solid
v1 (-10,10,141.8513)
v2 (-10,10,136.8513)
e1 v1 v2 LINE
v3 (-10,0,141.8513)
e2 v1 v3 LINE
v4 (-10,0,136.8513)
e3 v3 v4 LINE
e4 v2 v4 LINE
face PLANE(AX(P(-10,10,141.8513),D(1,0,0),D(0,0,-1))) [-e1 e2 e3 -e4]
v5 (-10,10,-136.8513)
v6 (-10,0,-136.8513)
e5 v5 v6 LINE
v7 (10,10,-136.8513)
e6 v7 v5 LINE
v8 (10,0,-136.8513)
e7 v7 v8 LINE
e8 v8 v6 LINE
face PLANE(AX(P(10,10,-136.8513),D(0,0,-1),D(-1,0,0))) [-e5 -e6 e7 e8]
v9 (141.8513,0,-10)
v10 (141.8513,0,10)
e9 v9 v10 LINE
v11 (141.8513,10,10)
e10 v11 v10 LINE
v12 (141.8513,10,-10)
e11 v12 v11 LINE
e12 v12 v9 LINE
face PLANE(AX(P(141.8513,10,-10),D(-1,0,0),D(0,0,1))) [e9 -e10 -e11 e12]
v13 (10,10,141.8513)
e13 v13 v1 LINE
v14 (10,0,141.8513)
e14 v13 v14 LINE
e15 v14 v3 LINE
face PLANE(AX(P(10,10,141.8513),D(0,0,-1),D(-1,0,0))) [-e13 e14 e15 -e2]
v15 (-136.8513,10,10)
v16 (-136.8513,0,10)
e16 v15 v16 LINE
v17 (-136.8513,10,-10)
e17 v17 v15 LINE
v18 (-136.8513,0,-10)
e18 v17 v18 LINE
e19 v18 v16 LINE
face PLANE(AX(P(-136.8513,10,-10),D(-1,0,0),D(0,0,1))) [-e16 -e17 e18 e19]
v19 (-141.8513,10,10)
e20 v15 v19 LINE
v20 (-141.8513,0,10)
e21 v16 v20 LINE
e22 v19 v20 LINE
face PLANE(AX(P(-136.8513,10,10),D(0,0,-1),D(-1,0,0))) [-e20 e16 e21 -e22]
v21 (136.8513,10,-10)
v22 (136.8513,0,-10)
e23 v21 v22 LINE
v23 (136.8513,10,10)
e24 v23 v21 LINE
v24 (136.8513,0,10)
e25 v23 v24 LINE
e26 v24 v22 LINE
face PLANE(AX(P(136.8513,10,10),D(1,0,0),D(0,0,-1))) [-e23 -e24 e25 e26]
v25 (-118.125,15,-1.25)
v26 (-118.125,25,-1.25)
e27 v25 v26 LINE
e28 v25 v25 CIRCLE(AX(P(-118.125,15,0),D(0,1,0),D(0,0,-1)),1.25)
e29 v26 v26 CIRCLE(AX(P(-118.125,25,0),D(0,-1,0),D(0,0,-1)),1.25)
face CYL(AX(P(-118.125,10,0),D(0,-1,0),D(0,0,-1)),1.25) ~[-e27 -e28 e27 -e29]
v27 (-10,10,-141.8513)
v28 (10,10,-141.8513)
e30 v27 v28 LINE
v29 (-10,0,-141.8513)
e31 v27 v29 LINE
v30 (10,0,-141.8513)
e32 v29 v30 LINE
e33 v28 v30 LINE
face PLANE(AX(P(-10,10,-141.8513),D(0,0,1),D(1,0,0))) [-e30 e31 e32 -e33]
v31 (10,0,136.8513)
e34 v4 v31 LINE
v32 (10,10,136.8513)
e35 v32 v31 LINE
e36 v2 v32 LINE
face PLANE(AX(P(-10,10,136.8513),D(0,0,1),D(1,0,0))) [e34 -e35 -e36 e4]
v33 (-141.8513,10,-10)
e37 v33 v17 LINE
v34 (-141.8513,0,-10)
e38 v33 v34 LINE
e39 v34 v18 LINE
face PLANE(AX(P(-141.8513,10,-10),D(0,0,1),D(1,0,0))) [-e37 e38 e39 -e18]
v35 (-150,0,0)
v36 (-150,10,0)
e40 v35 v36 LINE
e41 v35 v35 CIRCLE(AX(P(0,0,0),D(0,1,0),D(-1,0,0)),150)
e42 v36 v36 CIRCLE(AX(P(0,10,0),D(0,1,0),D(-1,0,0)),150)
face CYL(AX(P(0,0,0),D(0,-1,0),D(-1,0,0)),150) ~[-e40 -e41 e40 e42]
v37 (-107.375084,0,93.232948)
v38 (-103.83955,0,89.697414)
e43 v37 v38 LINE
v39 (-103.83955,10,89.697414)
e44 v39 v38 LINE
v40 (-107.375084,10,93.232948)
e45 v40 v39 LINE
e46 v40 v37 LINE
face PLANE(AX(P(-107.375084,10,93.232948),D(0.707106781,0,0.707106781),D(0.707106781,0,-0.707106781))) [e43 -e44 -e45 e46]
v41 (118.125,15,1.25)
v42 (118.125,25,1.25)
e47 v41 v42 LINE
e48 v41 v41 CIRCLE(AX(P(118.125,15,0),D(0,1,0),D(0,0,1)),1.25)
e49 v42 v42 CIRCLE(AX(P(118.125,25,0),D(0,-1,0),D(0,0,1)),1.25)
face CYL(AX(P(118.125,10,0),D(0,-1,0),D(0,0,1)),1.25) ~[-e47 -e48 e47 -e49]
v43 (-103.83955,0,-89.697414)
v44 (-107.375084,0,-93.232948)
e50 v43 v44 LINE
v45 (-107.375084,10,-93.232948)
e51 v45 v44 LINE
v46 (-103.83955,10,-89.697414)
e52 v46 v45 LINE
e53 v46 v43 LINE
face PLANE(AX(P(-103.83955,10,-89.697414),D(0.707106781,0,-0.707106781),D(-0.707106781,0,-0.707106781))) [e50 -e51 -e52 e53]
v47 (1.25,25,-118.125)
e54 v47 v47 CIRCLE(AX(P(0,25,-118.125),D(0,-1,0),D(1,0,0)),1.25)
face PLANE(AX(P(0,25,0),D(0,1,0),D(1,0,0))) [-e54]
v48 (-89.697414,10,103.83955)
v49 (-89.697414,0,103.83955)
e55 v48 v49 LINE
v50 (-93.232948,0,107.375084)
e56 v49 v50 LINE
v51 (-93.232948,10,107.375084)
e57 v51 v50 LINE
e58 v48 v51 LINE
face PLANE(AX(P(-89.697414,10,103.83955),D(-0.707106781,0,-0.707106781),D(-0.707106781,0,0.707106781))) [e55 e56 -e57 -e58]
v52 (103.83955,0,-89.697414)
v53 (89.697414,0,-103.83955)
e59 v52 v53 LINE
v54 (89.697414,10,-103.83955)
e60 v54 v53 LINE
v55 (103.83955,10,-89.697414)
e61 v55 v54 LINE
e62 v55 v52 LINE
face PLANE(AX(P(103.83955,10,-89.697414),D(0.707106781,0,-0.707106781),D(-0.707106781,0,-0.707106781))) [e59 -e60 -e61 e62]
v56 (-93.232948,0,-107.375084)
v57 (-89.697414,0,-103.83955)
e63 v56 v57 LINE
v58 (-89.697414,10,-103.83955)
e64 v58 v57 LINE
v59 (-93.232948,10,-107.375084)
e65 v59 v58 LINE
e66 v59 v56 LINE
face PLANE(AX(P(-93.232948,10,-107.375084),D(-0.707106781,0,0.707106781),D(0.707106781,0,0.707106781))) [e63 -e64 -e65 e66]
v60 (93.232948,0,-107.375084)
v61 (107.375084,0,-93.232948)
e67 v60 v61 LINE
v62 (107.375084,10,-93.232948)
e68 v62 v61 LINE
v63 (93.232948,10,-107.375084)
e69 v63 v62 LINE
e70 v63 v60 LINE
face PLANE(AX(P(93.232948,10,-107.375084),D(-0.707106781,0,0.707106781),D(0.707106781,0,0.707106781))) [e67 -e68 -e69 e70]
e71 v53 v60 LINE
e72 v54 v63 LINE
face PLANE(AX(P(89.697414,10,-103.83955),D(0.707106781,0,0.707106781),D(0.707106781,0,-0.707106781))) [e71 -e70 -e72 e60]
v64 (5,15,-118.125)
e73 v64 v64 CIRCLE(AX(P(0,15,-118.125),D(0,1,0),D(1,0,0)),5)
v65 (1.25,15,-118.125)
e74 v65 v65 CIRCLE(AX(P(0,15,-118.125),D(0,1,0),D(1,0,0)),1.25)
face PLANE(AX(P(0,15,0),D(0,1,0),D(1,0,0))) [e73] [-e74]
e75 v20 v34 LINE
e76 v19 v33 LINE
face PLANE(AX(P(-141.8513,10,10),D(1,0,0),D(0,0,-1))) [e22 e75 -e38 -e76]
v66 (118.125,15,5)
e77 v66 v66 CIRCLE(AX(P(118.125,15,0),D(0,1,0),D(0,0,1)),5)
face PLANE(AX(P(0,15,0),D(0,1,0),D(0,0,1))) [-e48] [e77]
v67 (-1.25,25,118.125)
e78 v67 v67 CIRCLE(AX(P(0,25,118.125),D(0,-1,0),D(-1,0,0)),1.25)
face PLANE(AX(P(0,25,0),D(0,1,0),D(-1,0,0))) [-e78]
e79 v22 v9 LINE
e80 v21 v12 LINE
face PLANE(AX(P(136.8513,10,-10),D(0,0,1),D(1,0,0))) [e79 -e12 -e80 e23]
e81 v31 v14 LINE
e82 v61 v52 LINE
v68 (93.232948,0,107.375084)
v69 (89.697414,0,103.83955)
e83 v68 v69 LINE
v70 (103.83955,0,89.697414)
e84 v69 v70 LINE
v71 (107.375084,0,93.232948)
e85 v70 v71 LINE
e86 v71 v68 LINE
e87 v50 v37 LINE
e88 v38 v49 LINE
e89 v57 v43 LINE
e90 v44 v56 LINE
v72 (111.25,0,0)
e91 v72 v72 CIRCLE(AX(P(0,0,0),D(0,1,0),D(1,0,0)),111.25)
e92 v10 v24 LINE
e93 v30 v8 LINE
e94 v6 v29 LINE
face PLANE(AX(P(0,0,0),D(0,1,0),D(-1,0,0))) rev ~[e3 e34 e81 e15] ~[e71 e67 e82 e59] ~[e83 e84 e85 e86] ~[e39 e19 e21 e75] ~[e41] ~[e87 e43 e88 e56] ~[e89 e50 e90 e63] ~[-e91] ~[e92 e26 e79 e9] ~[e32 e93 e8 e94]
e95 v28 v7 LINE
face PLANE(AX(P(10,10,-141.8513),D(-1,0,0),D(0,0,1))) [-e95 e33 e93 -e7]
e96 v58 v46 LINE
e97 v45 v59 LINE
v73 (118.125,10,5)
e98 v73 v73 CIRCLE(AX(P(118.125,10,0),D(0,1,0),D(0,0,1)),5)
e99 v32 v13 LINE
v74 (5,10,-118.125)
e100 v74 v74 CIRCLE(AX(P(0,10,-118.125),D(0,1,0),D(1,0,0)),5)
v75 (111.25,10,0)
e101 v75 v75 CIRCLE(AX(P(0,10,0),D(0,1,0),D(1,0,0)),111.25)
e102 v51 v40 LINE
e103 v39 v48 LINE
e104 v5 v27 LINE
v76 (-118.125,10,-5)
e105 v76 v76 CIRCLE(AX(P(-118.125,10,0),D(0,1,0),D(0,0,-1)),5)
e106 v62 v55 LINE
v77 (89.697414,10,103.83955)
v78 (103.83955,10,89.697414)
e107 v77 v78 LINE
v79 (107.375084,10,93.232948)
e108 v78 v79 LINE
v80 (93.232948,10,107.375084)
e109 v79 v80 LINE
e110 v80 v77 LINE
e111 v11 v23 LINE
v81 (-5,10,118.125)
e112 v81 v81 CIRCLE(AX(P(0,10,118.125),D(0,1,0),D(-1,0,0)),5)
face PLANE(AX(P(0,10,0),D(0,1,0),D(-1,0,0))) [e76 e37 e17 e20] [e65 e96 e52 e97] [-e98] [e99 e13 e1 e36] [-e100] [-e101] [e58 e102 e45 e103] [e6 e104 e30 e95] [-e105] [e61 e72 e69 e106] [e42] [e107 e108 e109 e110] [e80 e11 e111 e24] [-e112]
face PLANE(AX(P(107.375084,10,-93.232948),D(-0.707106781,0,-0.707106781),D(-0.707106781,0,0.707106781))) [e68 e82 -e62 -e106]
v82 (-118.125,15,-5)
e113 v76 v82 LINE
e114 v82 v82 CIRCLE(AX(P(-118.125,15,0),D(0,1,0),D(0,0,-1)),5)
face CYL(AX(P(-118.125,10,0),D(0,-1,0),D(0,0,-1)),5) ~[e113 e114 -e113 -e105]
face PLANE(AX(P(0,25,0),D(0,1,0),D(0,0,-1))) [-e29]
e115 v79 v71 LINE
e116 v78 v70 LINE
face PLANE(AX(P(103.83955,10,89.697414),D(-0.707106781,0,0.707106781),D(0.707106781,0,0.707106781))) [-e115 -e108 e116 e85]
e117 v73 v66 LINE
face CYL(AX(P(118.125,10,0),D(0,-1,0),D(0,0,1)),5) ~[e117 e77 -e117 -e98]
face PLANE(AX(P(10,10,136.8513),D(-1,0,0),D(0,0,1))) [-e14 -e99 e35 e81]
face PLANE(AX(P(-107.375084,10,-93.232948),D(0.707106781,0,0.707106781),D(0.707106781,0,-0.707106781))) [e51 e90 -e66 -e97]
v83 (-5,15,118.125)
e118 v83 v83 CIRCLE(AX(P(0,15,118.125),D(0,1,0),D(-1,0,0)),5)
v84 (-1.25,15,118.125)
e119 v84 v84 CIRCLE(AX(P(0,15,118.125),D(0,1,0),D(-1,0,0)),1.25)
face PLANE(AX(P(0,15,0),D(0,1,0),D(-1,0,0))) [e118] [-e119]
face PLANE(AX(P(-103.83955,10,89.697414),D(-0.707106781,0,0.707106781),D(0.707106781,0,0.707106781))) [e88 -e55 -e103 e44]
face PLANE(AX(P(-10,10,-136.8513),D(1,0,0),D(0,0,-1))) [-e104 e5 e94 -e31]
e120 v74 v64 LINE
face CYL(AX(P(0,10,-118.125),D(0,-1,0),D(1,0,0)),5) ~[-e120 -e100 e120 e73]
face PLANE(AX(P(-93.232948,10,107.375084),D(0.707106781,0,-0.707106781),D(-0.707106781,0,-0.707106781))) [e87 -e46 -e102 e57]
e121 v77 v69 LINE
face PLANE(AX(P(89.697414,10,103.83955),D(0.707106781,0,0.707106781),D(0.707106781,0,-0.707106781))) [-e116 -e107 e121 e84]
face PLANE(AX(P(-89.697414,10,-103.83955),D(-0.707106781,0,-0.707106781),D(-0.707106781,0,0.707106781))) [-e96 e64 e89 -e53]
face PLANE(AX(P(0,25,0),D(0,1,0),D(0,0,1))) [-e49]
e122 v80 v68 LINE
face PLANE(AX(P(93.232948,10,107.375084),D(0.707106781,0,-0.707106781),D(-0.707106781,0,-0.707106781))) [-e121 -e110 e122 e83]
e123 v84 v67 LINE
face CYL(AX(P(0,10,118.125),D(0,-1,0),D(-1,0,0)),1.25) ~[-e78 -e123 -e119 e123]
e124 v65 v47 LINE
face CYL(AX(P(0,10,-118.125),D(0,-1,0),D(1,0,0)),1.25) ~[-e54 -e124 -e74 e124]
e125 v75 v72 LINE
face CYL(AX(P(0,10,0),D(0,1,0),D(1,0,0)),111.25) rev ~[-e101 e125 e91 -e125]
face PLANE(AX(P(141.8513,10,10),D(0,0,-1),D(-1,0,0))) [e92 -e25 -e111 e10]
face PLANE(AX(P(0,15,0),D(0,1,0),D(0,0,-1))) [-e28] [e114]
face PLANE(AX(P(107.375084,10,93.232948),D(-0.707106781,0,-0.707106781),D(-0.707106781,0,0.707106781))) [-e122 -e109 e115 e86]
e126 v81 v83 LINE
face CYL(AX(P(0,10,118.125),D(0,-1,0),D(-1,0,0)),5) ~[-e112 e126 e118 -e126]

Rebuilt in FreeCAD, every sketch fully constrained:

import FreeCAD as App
import Part
import Sketcher


def add_polygon(sketch, points):
    """Adds a closed chain of lines whose ends are joined by coincident constraints."""
    first, n = sketch.GeometryCount, len(points)
    for a, b in zip(points, points[1:] + points[:1]):
        sketch.addGeometry(Part.LineSegment(App.Vector(*a, 0), App.Vector(*b, 0)), False)
    for i in range(n):
        sketch.addConstraint(Sketcher.Constraint("Coincident", first + i, 2, first + (i + 1) % n, 1))

doc = App.newDocument("Part")
body = doc.addObject("PartDesign::Body", "Body")

sketch1 = body.newObject("Sketcher::SketchObject", "Sketch")
sketch1.AttachmentSupport = (doc.getObject("XZ_Plane"), [""])
sketch1.MapMode = "FlatFace"
sketch1.addGeometry(Part.Circle(App.Vector(0, 0, 0), App.Vector(0, 0, 1), 150), False)
sketch1.addConstraint([
    Sketcher.Constraint("Coincident", 0, 3, -1, 1),
    Sketcher.Constraint("Diameter", 0, 300.0),
])
pad1 = body.newObject("PartDesign::Pad", "Pad")
pad1.Profile = sketch1
pad1.Length = 10
pad1.Reversed = True

sketch2 = body.newObject("Sketcher::SketchObject", "Sketch001")
sketch2.AttachmentSupport = (doc.getObject("XZ_Plane"), [""])
sketch2.MapMode = "FlatFace"
sketch2.AttachmentOffset = App.Placement(App.Vector(0, 0, -10), App.Rotation())
sketch2.addGeometry(Part.Circle(App.Vector(0, -118.1, 0), App.Vector(0, 0, 1), 1.2), False)
sketch2.addConstraint([
    Sketcher.Constraint("PointOnObject", 0, 3, -2),
    Sketcher.Constraint("Diameter", 0, 2.5),
    Sketcher.Constraint("DistanceY", 0, 3, -1, 1, 118.125),
])
pad2 = body.newObject("PartDesign::Pad", "Pad001")
pad2.Profile = sketch2
pad2.Length = 15
pad2.Reversed = True

sketch3 = body.newObject("Sketcher::SketchObject", "Sketch002")
sketch3.AttachmentSupport = (doc.getObject("XZ_Plane"), [""])
sketch3.MapMode = "FlatFace"
sketch3.AttachmentOffset = App.Placement(App.Vector(0, 0, -10), App.Rotation())
sketch3.addGeometry([
    Part.Circle(App.Vector(0, -118.1, 0), App.Vector(0, 0, 1), 5),
    Part.Circle(App.Vector(0, -118.1, 0), App.Vector(0, 0, 1), 1.2),
], False)
sketch3.addConstraint([
    Sketcher.Constraint("Coincident", 1, 3, 0, 3),
    Sketcher.Constraint("PointOnObject", 0, 3, -2),
    Sketcher.Constraint("Diameter", 0, 10.0),
    Sketcher.Constraint("Diameter", 1, 2.5),
    Sketcher.Constraint("DistanceY", 0, 3, -1, 1, 118.125),
])
pad3 = body.newObject("PartDesign::Pad", "Pad002")
pad3.Profile = sketch3
pad3.Length = 5
pad3.Reversed = True

sketch4 = body.newObject("Sketcher::SketchObject", "Sketch003")
sketch4.AttachmentSupport = (doc.getObject("XZ_Plane"), [""])
sketch4.MapMode = "FlatFace"
sketch4.AttachmentOffset = App.Placement(App.Vector(0, 0, -10), App.Rotation())
sketch4.addGeometry(Part.Circle(App.Vector(0, 0, 0), App.Vector(0, 0, 1), 111), False)
sketch4.addConstraint([
    Sketcher.Constraint("Coincident", 0, 3, -1, 1),
    Sketcher.Constraint("Diameter", 0, 222.5),
])
pocket1 = body.newObject("PartDesign::Pocket", "Pocket")
pocket1.Profile = sketch4
pocket1.Length = 10
pocket1.Reversed = True
doc.recompute()

polarpattern = body.newObject("PartDesign::PolarPattern", "PolarPattern")
polarpattern.Originals = [pad3, pad2]
polarpattern.Axis = (doc.getObject("Y_Axis"), [""])
polarpattern.Angle = 360
polarpattern.Occurrences = 4
body.Tip = polarpattern

sketch5 = body.newObject("Sketcher::SketchObject", "Sketch004")
sketch5.AttachmentSupport = (doc.getObject("XZ_Plane"), [""])
sketch5.MapMode = "FlatFace"
sketch5.AttachmentOffset = App.Placement(App.Vector(0, 0, -10), App.Rotation())
add_polygon(sketch5, [(10, 142), (10, 137), (-10, 137), (-10, 142)])
sketch5.addConstraint([
    Sketcher.Constraint("Vertical", 0),
    Sketcher.Constraint("Horizontal", 1),
    Sketcher.Constraint("Vertical", 2),
    Sketcher.Constraint("Horizontal", 3),
    Sketcher.Constraint("DistanceX", 1, 2, 1, 1, 20.0),
    Sketcher.Constraint("DistanceY", 0, 2, 0, 1, 5.0),
    Sketcher.Constraint("DistanceX", -1, 1, 0, 2, 10.0),
    Sketcher.Constraint("DistanceY", -1, 1, 0, 2, 136.8513),
])
pocket2 = body.newObject("PartDesign::Pocket", "Pocket001")
pocket2.Profile = sketch5
pocket2.Length = 10
pocket2.Reversed = True
doc.recompute()

polarpattern2 = body.newObject("PartDesign::PolarPattern", "PolarPattern001")
polarpattern2.Originals = [pocket2]
polarpattern2.Axis = (doc.getObject("Y_Axis"), [""])
polarpattern2.Angle = 360
polarpattern2.Occurrences = 8
body.Tip = polarpattern2

doc.recompute()
